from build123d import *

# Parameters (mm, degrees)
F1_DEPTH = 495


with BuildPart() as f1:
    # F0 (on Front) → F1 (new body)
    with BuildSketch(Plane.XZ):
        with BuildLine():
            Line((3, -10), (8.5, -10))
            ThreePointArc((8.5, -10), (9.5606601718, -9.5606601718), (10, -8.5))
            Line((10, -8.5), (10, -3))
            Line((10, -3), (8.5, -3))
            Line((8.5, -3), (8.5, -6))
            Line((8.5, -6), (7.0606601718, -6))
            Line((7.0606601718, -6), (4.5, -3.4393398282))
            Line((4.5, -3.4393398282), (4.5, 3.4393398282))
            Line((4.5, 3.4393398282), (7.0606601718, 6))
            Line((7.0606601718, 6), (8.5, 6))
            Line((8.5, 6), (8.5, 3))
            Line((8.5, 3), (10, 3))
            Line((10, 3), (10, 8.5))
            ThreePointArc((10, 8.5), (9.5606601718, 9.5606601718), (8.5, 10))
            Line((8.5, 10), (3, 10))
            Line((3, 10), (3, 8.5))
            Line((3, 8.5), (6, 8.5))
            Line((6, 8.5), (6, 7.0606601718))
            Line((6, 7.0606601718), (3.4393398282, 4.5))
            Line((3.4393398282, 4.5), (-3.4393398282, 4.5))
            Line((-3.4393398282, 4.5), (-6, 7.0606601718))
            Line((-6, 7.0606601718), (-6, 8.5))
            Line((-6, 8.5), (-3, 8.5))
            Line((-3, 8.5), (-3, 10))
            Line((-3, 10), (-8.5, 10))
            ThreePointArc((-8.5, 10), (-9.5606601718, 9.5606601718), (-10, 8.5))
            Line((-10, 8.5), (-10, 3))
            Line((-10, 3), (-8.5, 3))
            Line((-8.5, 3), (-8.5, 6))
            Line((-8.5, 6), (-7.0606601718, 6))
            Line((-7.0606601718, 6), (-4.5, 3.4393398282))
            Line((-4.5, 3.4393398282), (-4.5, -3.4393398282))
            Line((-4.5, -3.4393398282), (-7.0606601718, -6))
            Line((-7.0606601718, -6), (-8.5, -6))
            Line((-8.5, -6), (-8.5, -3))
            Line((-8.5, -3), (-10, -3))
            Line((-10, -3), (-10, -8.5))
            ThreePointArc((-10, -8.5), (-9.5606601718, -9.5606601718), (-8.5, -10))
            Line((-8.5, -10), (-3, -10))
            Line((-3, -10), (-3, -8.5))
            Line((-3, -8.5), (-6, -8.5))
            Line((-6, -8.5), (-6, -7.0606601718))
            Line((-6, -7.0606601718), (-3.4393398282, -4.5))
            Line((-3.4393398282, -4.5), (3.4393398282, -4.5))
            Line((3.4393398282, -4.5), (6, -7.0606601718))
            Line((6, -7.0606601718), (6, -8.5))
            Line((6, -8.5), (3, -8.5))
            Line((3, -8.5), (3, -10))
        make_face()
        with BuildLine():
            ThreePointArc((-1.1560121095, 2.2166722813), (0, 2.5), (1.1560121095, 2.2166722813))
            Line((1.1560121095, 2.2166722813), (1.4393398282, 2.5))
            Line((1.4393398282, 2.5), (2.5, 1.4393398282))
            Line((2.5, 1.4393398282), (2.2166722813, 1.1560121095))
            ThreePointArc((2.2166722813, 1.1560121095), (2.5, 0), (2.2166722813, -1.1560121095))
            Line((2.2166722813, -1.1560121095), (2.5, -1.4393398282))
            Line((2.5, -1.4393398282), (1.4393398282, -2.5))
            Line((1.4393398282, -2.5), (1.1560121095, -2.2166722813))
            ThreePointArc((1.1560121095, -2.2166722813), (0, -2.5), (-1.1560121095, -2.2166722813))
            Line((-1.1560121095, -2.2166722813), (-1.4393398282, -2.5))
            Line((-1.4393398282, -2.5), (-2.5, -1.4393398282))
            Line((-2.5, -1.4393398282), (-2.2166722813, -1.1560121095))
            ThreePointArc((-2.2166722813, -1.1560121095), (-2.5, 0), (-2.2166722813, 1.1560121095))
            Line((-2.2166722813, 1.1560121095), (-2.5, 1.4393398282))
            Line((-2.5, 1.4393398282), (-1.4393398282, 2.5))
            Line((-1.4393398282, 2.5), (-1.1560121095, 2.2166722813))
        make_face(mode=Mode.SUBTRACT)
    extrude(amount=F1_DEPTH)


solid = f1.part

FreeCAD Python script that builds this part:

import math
import FreeCAD as App
import Part
import Sketcher
from FreeCAD import Vector
Q = App.Units.Quantity

doc = App.newDocument("Part")
body = doc.addObject("PartDesign::Body", "Body")

sketch1 = doc.addObject("Sketcher::SketchObject", "Sketch")
body.addObject(sketch1)
sketch1.AttachmentSupport = (doc.XZ_Plane, [""])
sketch1.MapMode = "FlatFace"
sketch1.addGeometry([
    Part.LineSegment(Vector(3, -10, 0), Vector(8.5, -10, 0)),
    Part.ArcOfCircle(Part.Circle(Vector(8.5, -8.5, 0), Vector(0, 0, 1), 1.5), math.radians(-90), math.radians(0)),
    Part.LineSegment(Vector(10, -8.5, 0), Vector(10, -3, 0)),
    Part.LineSegment(Vector(10, -3, 0), Vector(8.5, -3, 0)),
    Part.LineSegment(Vector(8.5, -3, 0), Vector(8.5, -6, 0)),
    Part.LineSegment(Vector(8.5, -6, 0), Vector(7.06, -6, 0)),
    Part.LineSegment(Vector(7.06, -6, 0), Vector(4.5, -3.44, 0)),
    Part.LineSegment(Vector(4.5, -3.44, 0), Vector(4.5, 3.44, 0)),
    Part.LineSegment(Vector(4.5, 3.44, 0), Vector(7.06, 6, 0)),
    Part.LineSegment(Vector(7.06, 6, 0), Vector(8.5, 6, 0)),
    Part.LineSegment(Vector(8.5, 6, 0), Vector(8.5, 3, 0)),
    Part.LineSegment(Vector(8.5, 3, 0), Vector(10, 3, 0)),
    Part.LineSegment(Vector(10, 3, 0), Vector(10, 8.5, 0)),
    Part.ArcOfCircle(Part.Circle(Vector(8.5, 8.5, 0), Vector(0, 0, 1), 1.5), math.radians(0), math.radians(90)),
    Part.LineSegment(Vector(8.5, 10, 0), Vector(3, 10, 0)),
    Part.LineSegment(Vector(3, 10, 0), Vector(3, 8.5, 0)),
    Part.LineSegment(Vector(3, 8.5, 0), Vector(6, 8.5, 0)),
    Part.LineSegment(Vector(6, 8.5, 0), Vector(6, 7.06, 0)),
    Part.LineSegment(Vector(6, 7.06, 0), Vector(3.44, 4.5, 0)),
    Part.LineSegment(Vector(3.44, 4.5, 0), Vector(-3.44, 4.5, 0)),
    Part.LineSegment(Vector(-3.44, 4.5, 0), Vector(-6, 7.06, 0)),
    Part.LineSegment(Vector(-6, 7.06, 0), Vector(-6, 8.5, 0)),
    Part.LineSegment(Vector(-6, 8.5, 0), Vector(-3, 8.5, 0)),
    Part.LineSegment(Vector(-3, 8.5, 0), Vector(-3, 10, 0)),
    Part.LineSegment(Vector(-3, 10, 0), Vector(-8.5, 10, 0)),
    Part.ArcOfCircle(Part.Circle(Vector(-8.5, 8.5, 0), Vector(0, 0, 1), 1.5), math.radians(90), math.radians(180)),
    Part.LineSegment(Vector(-10, 8.5, 0), Vector(-10, 3, 0)),
    Part.LineSegment(Vector(-10, 3, 0), Vector(-8.5, 3, 0)),
    Part.LineSegment(Vector(-8.5, 3, 0), Vector(-8.5, 6, 0)),
    Part.LineSegment(Vector(-8.5, 6, 0), Vector(-7.06, 6, 0)),
    Part.LineSegment(Vector(-7.06, 6, 0), Vector(-4.5, 3.44, 0)),
    Part.LineSegment(Vector(-4.5, 3.44, 0), Vector(-4.5, -3.44, 0)),
    Part.LineSegment(Vector(-4.5, -3.44, 0), Vector(-7.06, -6, 0)),
    Part.LineSegment(Vector(-7.06, -6, 0), Vector(-8.5, -6, 0)),
    Part.LineSegment(Vector(-8.5, -6, 0), Vector(-8.5, -3, 0)),
    Part.LineSegment(Vector(-8.5, -3, 0), Vector(-10, -3, 0)),
    Part.LineSegment(Vector(-10, -3, 0), Vector(-10, -8.5, 0)),
    Part.ArcOfCircle(Part.Circle(Vector(-8.5, -8.5, 0), Vector(0, 0, 1), 1.5), math.radians(180), math.radians(270)),
    Part.LineSegment(Vector(-8.5, -10, 0), Vector(-3, -10, 0)),
    Part.LineSegment(Vector(-3, -10, 0), Vector(-3, -8.5, 0)),
    Part.LineSegment(Vector(-3, -8.5, 0), Vector(-6, -8.5, 0)),
    Part.LineSegment(Vector(-6, -8.5, 0), Vector(-6, -7.06, 0)),
    Part.LineSegment(Vector(-6, -7.06, 0), Vector(-3.44, -4.5, 0)),
    Part.LineSegment(Vector(-3.44, -4.5, 0), Vector(3.44, -4.5, 0)),
    Part.LineSegment(Vector(3.44, -4.5, 0), Vector(6, -7.06, 0)),
    Part.LineSegment(Vector(6, -7.06, 0), Vector(6, -8.5, 0)),
    Part.LineSegment(Vector(6, -8.5, 0), Vector(3, -8.5, 0)),
    Part.LineSegment(Vector(3, -8.5, 0), Vector(3, -10, 0)),
    Part.LineSegment(Vector(-1.44, 2.5, 0), Vector(-1.16, 2.22, 0)),
    Part.ArcOfCircle(Part.Circle(Vector(0, 0, 0), Vector(0, 0, 1), 2.5), math.radians(62), math.radians(118)),
    Part.LineSegment(Vector(1.16, 2.22, 0), Vector(1.44, 2.5, 0)),
    Part.LineSegment(Vector(1.44, 2.5, 0), Vector(2.5, 1.44, 0)),
    Part.LineSegment(Vector(2.5, 1.44, 0), Vector(2.22, 1.16, 0)),
    Part.ArcOfCircle(Part.Circle(Vector(0, 0, 0), Vector(0, 0, 1), 2.5), math.radians(-28), math.radians(28)),
    Part.LineSegment(Vector(2.22, -1.16, 0), Vector(2.5, -1.44, 0)),
    Part.LineSegment(Vector(2.5, -1.44, 0), Vector(1.44, -2.5, 0)),
    Part.LineSegment(Vector(1.44, -2.5, 0), Vector(1.16, -2.22, 0)),
    Part.ArcOfCircle(Part.Circle(Vector(0, 0, 0), Vector(0, 0, 1), 2.5), math.radians(-118), math.radians(-62)),
    Part.LineSegment(Vector(-1.16, -2.22, 0), Vector(-1.44, -2.5, 0)),
    Part.LineSegment(Vector(-1.44, -2.5, 0), Vector(-2.5, -1.44, 0)),
    Part.LineSegment(Vector(-2.5, -1.44, 0), Vector(-2.22, -1.16, 0)),
    Part.ArcOfCircle(Part.Circle(Vector(0, 0, 0), Vector(0, 0, 1), 2.5), math.radians(152), math.radians(208)),
    Part.LineSegment(Vector(-2.22, 1.16, 0), Vector(-2.5, 1.44, 0)),
    Part.LineSegment(Vector(-2.5, 1.44, 0), Vector(-1.44, 2.5, 0)),
], False)
sketch1.addConstraint([
    Sketcher.Constraint("Tangent", 0, 2, 1, 1),
    Sketcher.Constraint("Tangent", 1, 2, 2, 1),
    Sketcher.Constraint("Coincident", 2, 2, 3, 1),
    Sketcher.Constraint("Coincident", 3, 2, 4, 1),
    Sketcher.Constraint("Coincident", 4, 2, 5, 1),
    Sketcher.Constraint("Coincident", 5, 2, 6, 1),
    Sketcher.Constraint("Coincident", 6, 2, 7, 1),
    Sketcher.Constraint("Coincident", 7, 2, 8, 1),
    Sketcher.Constraint("Coincident", 8, 2, 9, 1),
    Sketcher.Constraint("Coincident", 9, 2, 10, 1),
    Sketcher.Constraint("Coincident", 10, 2, 11, 1),
    Sketcher.Constraint("Coincident", 11, 2, 12, 1),
    Sketcher.Constraint("Tangent", 12, 2, 13, 1),
    Sketcher.Constraint("Tangent", 13, 2, 14, 1),
    Sketcher.Constraint("Coincident", 14, 2, 15, 1),
    Sketcher.Constraint("Coincident", 15, 2, 16, 1),
    Sketcher.Constraint("Coincident", 16, 2, 17, 1),
    Sketcher.Constraint("Coincident", 17, 2, 18, 1),
    Sketcher.Constraint("Coincident", 18, 2, 19, 1),
    Sketcher.Constraint("Coincident", 19, 2, 20, 1),
    Sketcher.Constraint("Coincident", 20, 2, 21, 1),
    Sketcher.Constraint("Coincident", 21, 2, 22, 1),
    Sketcher.Constraint("Coincident", 22, 2, 23, 1),
    Sketcher.Constraint("Coincident", 23, 2, 24, 1),
    Sketcher.Constraint("Tangent", 24, 2, 25, 1),
    Sketcher.Constraint("Tangent", 25, 2, 26, 1),
    Sketcher.Constraint("Coincident", 26, 2, 27, 1),
    Sketcher.Constraint("Coincident", 27, 2, 28, 1),
    Sketcher.Constraint("Coincident", 28, 2, 29, 1),
    Sketcher.Constraint("Coincident", 29, 2, 30, 1),
    Sketcher.Constraint("Coincident", 30, 2, 31, 1),
    Sketcher.Constraint("Coincident", 31, 2, 32, 1),
    Sketcher.Constraint("Coincident", 32, 2, 33, 1),
    Sketcher.Constraint("Coincident", 33, 2, 34, 1),
    Sketcher.Constraint("Coincident", 34, 2, 35, 1),
    Sketcher.Constraint("Coincident", 35, 2, 36, 1),
    Sketcher.Constraint("Tangent", 36, 2, 37, 1),
    Sketcher.Constraint("Tangent", 37, 2, 38, 1),
    Sketcher.Constraint("Coincident", 38, 2, 39, 1),
    Sketcher.Constraint("Coincident", 39, 2, 40, 1),
    Sketcher.Constraint("Coincident", 40, 2, 41, 1),
    Sketcher.Constraint("Coincident", 41, 2, 42, 1),
    Sketcher.Constraint("Coincident", 42, 2, 43, 1),
    Sketcher.Constraint("Coincident", 43, 2, 44, 1),
    Sketcher.Constraint("Coincident", 44, 2, 45, 1),
    Sketcher.Constraint("Coincident", 45, 2, 46, 1),
    Sketcher.Constraint("Coincident", 46, 2, 47, 1),
    Sketcher.Constraint("Coincident", 47, 2, 0, 1),
    Sketcher.Constraint("Coincident", 48, 2, 49, 2),
    Sketcher.Constraint("Coincident", 49, 1, 50, 1),
    Sketcher.Constraint("Coincident", 50, 2, 51, 1),
    Sketcher.Constraint("Coincident", 51, 2, 52, 1),
    Sketcher.Constraint("Coincident", 52, 2, 53, 2),
    Sketcher.Constraint("Coincident", 53, 1, 54, 1),
    Sketcher.Constraint("Coincident", 54, 2, 55, 1),
    Sketcher.Constraint("Coincident", 55, 2, 56, 1),
    Sketcher.Constraint("Coincident", 56, 2, 57, 2),
    Sketcher.Constraint("Coincident", 57, 1, 58, 1),
    Sketcher.Constraint("Coincident", 58, 2, 59, 1),
    Sketcher.Constraint("Coincident", 59, 2, 60, 1),
    Sketcher.Constraint("Coincident", 60, 2, 61, 2),
    Sketcher.Constraint("Coincident", 61, 1, 62, 1),
    Sketcher.Constraint("Coincident", 62, 2, 63, 1),
    Sketcher.Constraint("Coincident", 63, 2, 48, 1),
    Sketcher.Constraint("Horizontal", 0),
    Sketcher.Constraint("Vertical", 2),
    Sketcher.Constraint("Horizontal", 3),
    Sketcher.Constraint("Vertical", 4),
    Sketcher.Constraint("Horizontal", 5),
    Sketcher.Constraint("Vertical", 7),
    Sketcher.Constraint("Horizontal", 9),
    Sketcher.Constraint("Vertical", 10),
    Sketcher.Constraint("Horizontal", 11),
    Sketcher.Constraint("Vertical", 12),
    Sketcher.Constraint("Horizontal", 14),
    Sketcher.Constraint("Vertical", 15),
    Sketcher.Constraint("Horizontal", 16),
    Sketcher.Constraint("Vertical", 17),
    Sketcher.Constraint("Horizontal", 19),
    Sketcher.Constraint("Vertical", 21),
    Sketcher.Constraint("Horizontal", 22),
    Sketcher.Constraint("Vertical", 23),
    Sketcher.Constraint("Horizontal", 24),
    Sketcher.Constraint("Vertical", 26),
    Sketcher.Constraint("Horizontal", 27),
    Sketcher.Constraint("Vertical", 28),
    Sketcher.Constraint("Horizontal", 29),
    Sketcher.Constraint("Vertical", 31),
    Sketcher.Constraint("Horizontal", 33),
    Sketcher.Constraint("Vertical", 34),
    Sketcher.Constraint("Horizontal", 35),
    Sketcher.Constraint("Vertical", 36),
    Sketcher.Constraint("Horizontal", 38),
    Sketcher.Constraint("Vertical", 39),
    Sketcher.Constraint("Horizontal", 40),
    Sketcher.Constraint("Vertical", 41),
    Sketcher.Constraint("Horizontal", 43),
    Sketcher.Constraint("Vertical", 45),
    Sketcher.Constraint("Horizontal", 46),
    Sketcher.Constraint("Vertical", 47),
    Sketcher.Constraint("Coincident", 49, 3, -1, 1),
    Sketcher.Constraint("Coincident", 53, 3, -1, 1),
    Sketcher.Constraint("Coincident", 57, 3, -1, 1),
    Sketcher.Constraint("Coincident", 61, 3, -1, 1),
    Sketcher.Constraint("Equal", 1, 13),
    Sketcher.Constraint("Equal", 13, 25),
    Sketcher.Constraint("Equal", 25, 37),
    Sketcher.Constraint("Equal", 49, 53),
    Sketcher.Constraint("Equal", 53, 57),
    Sketcher.Constraint("Equal", 57, 61),
    Sketcher.Constraint("Symmetric", 1, 3, 25, 3, -1, 1),
    Sketcher.Constraint("Symmetric", 13, 3, 37, 3, -1, 1),
    Sketcher.Constraint("Symmetric", 3, 2, 27, 2, -1, 1),
    Sketcher.Constraint("Symmetric", 5, 2, 29, 2, -1, 1),
    Sketcher.Constraint("Symmetric", 6, 2, 30, 2, -1, 1),
    Sketcher.Constraint("Symmetric", 8, 2, 32, 2, -1, 1),
    Sketcher.Constraint("Symmetric", 10, 2, 34, 2, -1, 1),
    Sketcher.Constraint("Symmetric", 15, 2, 39, 2, -1, 1),
    Sketcher.Constraint("Symmetric", 17, 2, 41, 2, -1, 1),
    Sketcher.Constraint("Symmetric", 18, 2, 42, 2, -1, 1),
    Sketcher.Constraint("Symmetric", 20, 2, 44, 2, -1, 1),
    Sketcher.Constraint("Symmetric", 22, 2, 46, 2, -1, 1),
    Sketcher.Constraint("Symmetric", 50, 2, 58, 2, -1, 1),
    Sketcher.Constraint("Symmetric", 51, 2, 59, 2, -1, 1),
    Sketcher.Constraint("Symmetric", 54, 2, 62, 2, -1, 1),
    Sketcher.Constraint("Symmetric", 55, 2, 63, 2, -1, 1),
    Sketcher.Constraint("Symmetric", 13, 3, 25, 3, -2),
    Sketcher.Constraint("Symmetric", 17, 2, 20, 2, -2),
    Sketcher.Constraint("Symmetric", 15, 2, 22, 2, -2),
    Sketcher.Constraint("Symmetric", 10, 2, 27, 2, -2),
    Sketcher.Constraint("Symmetric", 8, 2, 29, 2, -2),
    Sketcher.Constraint("Symmetric", 55, 2, 58, 2, -2),
    Sketcher.Constraint("Symmetric", 54, 2, 59, 2, -2),
    Sketcher.Constraint("Perpendicular", 6, 8),
    Sketcher.Constraint("Parallel", 8, 18),
    Sketcher.Constraint("Perpendicular", 18, 20),
    Sketcher.Constraint("Perpendicular", 30, 32),
    Sketcher.Constraint("Perpendicular", 42, 44),
    Sketcher.Constraint("Parallel", 44, 48),
    Sketcher.Constraint("Perpendicular", 48, 50),
    Sketcher.Constraint("Perpendicular", 50, 51),
    Sketcher.Constraint("Perpendicular", 51, 52),
    Sketcher.Constraint("Perpendicular", 52, 54),
    Sketcher.Constraint("Perpendicular", 54, 55),
    Sketcher.Constraint("Perpendicular", 55, 56),
    Sketcher.Constraint("Perpendicular", 56, 58),
    Sketcher.Constraint("Perpendicular", 59, 60),
    Sketcher.Constraint("Perpendicular", 60, 62),
    Sketcher.Constraint("Horizontal", 12, 2, 15, 2),
    Sketcher.Constraint("Vertical", 0, 2, 3, 2),
    Sketcher.Constraint("Equal", 38, 2),
    Sketcher.Constraint("Equal", 46, 4),
    Sketcher.Constraint("Equal", 43, 7),
    Sketcher.Constraint("Equal", 33, 17),
    Sketcher.Constraint("Equal", 8, 18),
    Sketcher.Constraint("Equal", 50, 52),
    Sketcher.Constraint("Radius", 1, Q("1.5 mm")),
    Sketcher.Constraint("Radius", 49, Q("2.5 mm")),
    Sketcher.Constraint("DistanceX", 16, 1, 16, 2, Q("3 mm")),
    Sketcher.Constraint("DistanceX", 0, 1, 0, 2, Q("5.5 mm")),
    Sketcher.Constraint("DistanceY", 0, 2, -1, 1, Q("10 mm")),
    Sketcher.Constraint("Distance", 51, Q("1.5 mm")),
    Sketcher.Constraint("DistanceX", -1, 1, 6, 2, Q("4.5 mm")),
    Sketcher.Constraint("DistanceY", -1, 1, 50, 2, Q("2.5 mm")),
    Sketcher.Constraint("DistanceX", 5, 2, 5, 1, Q("1.43934 mm")),
])
pad1 = doc.addObject("PartDesign::Pad", "Pad")
body.addObject(pad1)
pad1.Profile = sketch1
pad1.Length = 495

doc.recompute()
